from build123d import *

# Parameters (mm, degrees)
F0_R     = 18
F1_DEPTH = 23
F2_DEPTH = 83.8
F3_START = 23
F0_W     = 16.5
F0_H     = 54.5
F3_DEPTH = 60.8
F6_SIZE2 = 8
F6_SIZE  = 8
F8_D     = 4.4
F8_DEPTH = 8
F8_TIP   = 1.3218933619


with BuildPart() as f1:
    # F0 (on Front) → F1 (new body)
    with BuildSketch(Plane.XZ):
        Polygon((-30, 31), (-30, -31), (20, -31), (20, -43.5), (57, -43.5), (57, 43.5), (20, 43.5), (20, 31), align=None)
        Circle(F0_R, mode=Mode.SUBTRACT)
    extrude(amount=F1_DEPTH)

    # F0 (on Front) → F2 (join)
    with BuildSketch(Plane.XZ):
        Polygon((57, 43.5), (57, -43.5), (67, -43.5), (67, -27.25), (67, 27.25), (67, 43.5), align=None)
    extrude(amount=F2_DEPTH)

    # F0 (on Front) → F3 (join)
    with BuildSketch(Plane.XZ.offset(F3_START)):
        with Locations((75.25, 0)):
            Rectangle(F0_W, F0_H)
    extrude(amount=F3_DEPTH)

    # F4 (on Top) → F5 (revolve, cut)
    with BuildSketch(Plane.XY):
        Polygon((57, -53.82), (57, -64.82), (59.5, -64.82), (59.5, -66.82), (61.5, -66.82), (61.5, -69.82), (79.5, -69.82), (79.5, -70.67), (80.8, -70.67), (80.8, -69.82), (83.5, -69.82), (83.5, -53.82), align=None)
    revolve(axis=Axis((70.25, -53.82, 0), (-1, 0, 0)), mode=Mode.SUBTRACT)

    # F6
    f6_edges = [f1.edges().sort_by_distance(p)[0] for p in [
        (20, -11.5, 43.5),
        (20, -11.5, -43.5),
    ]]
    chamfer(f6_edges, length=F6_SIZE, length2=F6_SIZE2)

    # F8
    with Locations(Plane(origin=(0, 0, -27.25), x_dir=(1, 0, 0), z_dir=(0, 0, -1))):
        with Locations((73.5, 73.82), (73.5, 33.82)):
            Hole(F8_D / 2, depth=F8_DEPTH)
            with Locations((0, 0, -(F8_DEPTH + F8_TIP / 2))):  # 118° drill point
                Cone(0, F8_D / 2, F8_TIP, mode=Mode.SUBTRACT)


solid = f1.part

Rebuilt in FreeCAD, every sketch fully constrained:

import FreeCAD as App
import Part
import Sketcher
from FreeCAD import Vector


def edges_at(feature, points):
    """Names of the edges that pass closest to the given points."""
    edges = feature.Shape.Edges
    near = lambda p: min(range(len(edges)), key=lambda i: edges[i].distToShape(Part.Vertex(*p))[0])
    return sorted({f"Edge{near(p) + 1}" for p in points})


def add_polygon(sketch, points):
    """Adds a closed chain of lines whose ends are joined by coincident constraints."""
    first, n = sketch.GeometryCount, len(points)
    for a, b in zip(points, points[1:] + points[:1]):
        sketch.addGeometry(Part.LineSegment(App.Vector(*a, 0), App.Vector(*b, 0)), False)
    for i in range(n):
        sketch.addConstraint(Sketcher.Constraint("Coincident", first + i, 2, first + (i + 1) % n, 1))

doc = App.newDocument("Part")
params = doc.addObject("Spreadsheet::Sheet", "Params")
for row, (alias, value) in enumerate([
    ("sketch1_diameter", "36 mm"),
    ("sketch1_width", "50 mm"),
    ("sketch1_width2", "37 mm"),
    ("sketch1_height", "62 mm"),
    ("sketch1_height2", "87 mm"),
    ("pad1_length", "23 mm"),
    ("sketch2_width", "10 mm"),
    ("sketch2_height", "87 mm"),
    ("pad2_length", "83.8 mm"),
    ("sketch3_width", "16.5 mm"),
    ("sketch3_height", "54.5 mm"),
    ("pad3_length", "60.8 mm"),
    ("sketch4_width", "2 mm"),
    ("sketch4_width2", "18 mm"),
    ("sketch4_height", "11 mm"),
    ("sketch4_height2", "3 mm"),
    ("sketch4_width3", "2.5 mm"),
    ("groove_angle", "360 deg"),
    ("chamfer_size", "8 mm"),
    ("chamfer_size2", "8 mm"),
    ("sketch5_diameter", "4.4 mm"),
    ("hole_diameter", "4.4 mm"),
    ("hole_depth", "8 mm"),
], start=1):
    params.set(f"A{row}", alias)
    params.set(f"B{row}", "=" + value)
    params.setAlias(f"B{row}", alias)

body = doc.addObject("PartDesign::Body", "Body")

# Sketch on XZ plane
sketch1 = doc.addObject("Sketcher::SketchObject", "Sketch")
body.addObject(sketch1)
sketch1.AttachmentSupport = (doc.XZ_Plane, [""])
sketch1.MapMode = "FlatFace"
add_polygon(sketch1, [(-30, 31), (-30, -31), (20, -31), (20, -44), (57, -44), (57, 44), (20, 44), (20, 31)])  # lines 0-7
sketch1.addGeometry(Part.Circle(Vector(0, 0, 0), Vector(0, 0, 1), 18), False)  # 8
sketch1.addConstraint([
    Sketcher.Constraint("Vertical", 0),
    Sketcher.Constraint("Horizontal", 1),
    Sketcher.Constraint("Vertical", 2),
    Sketcher.Constraint("Horizontal", 3),
    Sketcher.Constraint("Vertical", 4),
    Sketcher.Constraint("Horizontal", 5),
    Sketcher.Constraint("Vertical", 6),
    Sketcher.Constraint("Horizontal", 7),
    Sketcher.Constraint("Coincident", 8, 3, -1, 1),
    Sketcher.Constraint("Symmetric", 2, 2, 5, 2, -1),
    Sketcher.Constraint("Equal", 2, 6),
    Sketcher.Constraint("Diameter", 8, 36.0),
    Sketcher.Constraint("DistanceX", 1, 1, 1, 2, 50.0),
    Sketcher.Constraint("DistanceX", 3, 1, 3, 2, 37.0),
    Sketcher.Constraint("DistanceY", 0, 2, 0, 1, 62.0),
    Sketcher.Constraint("DistanceY", 4, 1, 4, 2, 87.0),
    Sketcher.Constraint("DistanceX", 0, 2, -1, 1, 30.0),
])
sketch1.setExpression("Constraints[19]", "Params.sketch1_diameter")
sketch1.setExpression("Constraints[20]", "Params.sketch1_width")
sketch1.setExpression("Constraints[21]", "Params.sketch1_width2")
sketch1.setExpression("Constraints[22]", "Params.sketch1_height")
sketch1.setExpression("Constraints[23]", "Params.sketch1_height2")
pad1 = doc.addObject("PartDesign::Pad", "Pad")
body.addObject(pad1)
pad1.Profile = sketch1
pad1.setExpression("Length", "Params.pad1_length")

# Sketch on XZ plane
sketch2 = doc.addObject("Sketcher::SketchObject", "Sketch001")
body.addObject(sketch2)
sketch2.AttachmentSupport = (doc.XZ_Plane, [""])
sketch2.MapMode = "FlatFace"
add_polygon(sketch2, [(57, 44), (57, -44), (67, -44), (67, 44)])  # lines 0-3
sketch2.addConstraint([
    Sketcher.Constraint("Vertical", 0),
    Sketcher.Constraint("Horizontal", 1),
    Sketcher.Constraint("Vertical", 2),
    Sketcher.Constraint("Horizontal", 3),
    Sketcher.Constraint("DistanceX", 1, 1, 1, 2, 10.0),
    Sketcher.Constraint("DistanceY", 0, 2, 0, 1, 87.0),
    Sketcher.Constraint("DistanceX", -1, 1, 0, 2, 57.0),
    Sketcher.Constraint("DistanceY", 0, 2, -1, 1, 43.5),
])
sketch2.setExpression("Constraints[8]", "Params.sketch2_width")
sketch2.setExpression("Constraints[9]", "Params.sketch2_height")
pad2 = doc.addObject("PartDesign::Pad", "Pad001")
body.addObject(pad2)
pad2.Profile = sketch2
pad2.setExpression("Length", "Params.pad2_length")

# Sketch on XZ plane
sketch3 = doc.addObject("Sketcher::SketchObject", "Sketch002")
body.addObject(sketch3)
sketch3.AttachmentSupport = (doc.XZ_Plane, [""])
sketch3.MapMode = "FlatFace"
sketch3.AttachmentOffset = App.Placement(Vector(0, 0, 23), App.Rotation())
add_polygon(sketch3, [(67, 27), (67, -27), (84, -27), (84, 27)])  # lines 0-3
sketch3.addConstraint([
    Sketcher.Constraint("Vertical", 0),
    Sketcher.Constraint("Horizontal", 1),
    Sketcher.Constraint("Vertical", 2),
    Sketcher.Constraint("Horizontal", 3),
    Sketcher.Constraint("DistanceX", 1, 1, 1, 2, 16.5),
    Sketcher.Constraint("DistanceY", 0, 2, 0, 1, 54.5),
    Sketcher.Constraint("DistanceX", -1, 1, 0, 2, 67.0),
    Sketcher.Constraint("DistanceY", 0, 2, -1, 1, 27.25),
])
sketch3.setExpression("Constraints[8]", "Params.sketch3_width")
sketch3.setExpression("Constraints[9]", "Params.sketch3_height")
pad3 = doc.addObject("PartDesign::Pad", "Pad002")
body.addObject(pad3)
pad3.Profile = sketch3
pad3.setExpression("Length", "Params.pad3_length")

# Sketch on XY plane
sketch4 = doc.addObject("Sketcher::SketchObject", "Sketch003")
body.addObject(sketch4)
sketch4.AttachmentSupport = (doc.XY_Plane, [""])
sketch4.MapMode = "FlatFace"
add_polygon(sketch4, [(57, -53.8), (57, -64.8), (59.5, -64.8), (59.5, -66.8), (61.5, -66.8), (61.5, -69.8), (79.5, -69.8), (79.5, -70.7), (80.8, -70.7), (80.8, -69.8), (83.5, -69.8), (83.5, -53.8)])  # lines 0-11
sketch4.addGeometry(Part.LineSegment(Vector(83.5, -53.8, 0), Vector(57, -53.8, 0)), True)  # axis
sketch4.addConstraint([
    Sketcher.Constraint("Vertical", 0),
    Sketcher.Constraint("Horizontal", 1),
    Sketcher.Constraint("Vertical", 2),
    Sketcher.Constraint("Horizontal", 3),
    Sketcher.Constraint("Vertical", 4),
    Sketcher.Constraint("Horizontal", 5),
    Sketcher.Constraint("Vertical", 6),
    Sketcher.Constraint("Horizontal", 7),
    Sketcher.Constraint("Vertical", 8),
    Sketcher.Constraint("Horizontal", 9),
    Sketcher.Constraint("Vertical", 10),
    Sketcher.Constraint("Horizontal", 11),
    Sketcher.Constraint("Horizontal", 12),
    Sketcher.Constraint("Coincident", 12, 1, 10, 2),
    Sketcher.Constraint("Horizontal", 5, 2, 8, 2),
    Sketcher.Constraint("Vertical", 0, 2, 12, 2),
    Sketcher.Constraint("Equal", 3, 2),
    Sketcher.Constraint("DistanceX", 3, 1, 3, 2, 2.0),
    Sketcher.Constraint("DistanceX", 5, 1, 5, 2, 18.0),
    Sketcher.Constraint("DistanceY", 0, 2, 0, 1, 11.0),
    Sketcher.Constraint("DistanceY", 4, 2, 4, 1, 3.0),
    Sketcher.Constraint("DistanceX", 1, 1, 1, 2, 2.5),
    Sketcher.Constraint("DistanceX", 7, 1, 7, 2, 1.3),
    Sketcher.Constraint("DistanceX", 9, 1, 9, 2, 2.7),
    Sketcher.Constraint("DistanceX", -1, 1, 0, 2, 57.0),
    Sketcher.Constraint("DistanceY", 6, 2, 6, 1, 0.85),
    Sketcher.Constraint("DistanceY", 0, 2, -1, 1, 64.82),
])
sketch4.setExpression("Constraints[29]", "Params.sketch4_width")
sketch4.setExpression("Constraints[30]", "Params.sketch4_width2")
sketch4.setExpression("Constraints[31]", "Params.sketch4_height")
sketch4.setExpression("Constraints[32]", "Params.sketch4_height2")
sketch4.setExpression("Constraints[33]", "Params.sketch4_width3")
groove = doc.addObject("PartDesign::Groove", "Groove")
body.addObject(groove)
groove.Profile = sketch4
groove.ReferenceAxis = (sketch4, ["Axis0"])
groove.setExpression("Angle", "Params.groove_angle")
doc.recompute()

chamfer = doc.addObject("PartDesign::Chamfer", "Chamfer")
body.addObject(chamfer)
chamfer.Base = (groove, edges_at(groove, [(20, -11.5, 43.5), (20, -11.5, -43.5)]))
chamfer.ChamferType = "Two distances"
chamfer.setExpression("Size", "Params.chamfer_size")
chamfer.setExpression("Size2", "Params.chamfer_size2")

# Sketch on XY plane
sketch5 = doc.addObject("Sketcher::SketchObject", "Sketch004")
body.addObject(sketch5)
sketch5.AttachmentSupport = (doc.XY_Plane, [""])
sketch5.MapMode = "FlatFace"
sketch5.AttachmentOffset = App.Placement(Vector(0, 0, -27.25), App.Rotation())
sketch5.addGeometry([
    Part.Circle(Vector(73.5, -73.8, 0), Vector(0, 0, 1), 2.2),
    Part.Circle(Vector(73.5, -33.8, 0), Vector(0, 0, 1), 2.2),
], False)
sketch5.addConstraint([
    Sketcher.Constraint("Equal", 0, 1),
    Sketcher.Constraint("Vertical", 0, 3, 1, 3),
    Sketcher.Constraint("Diameter", 0, 4.4),
    Sketcher.Constraint("DistanceY", 0, 3, 1, 3, 40.0),
    Sketcher.Constraint("DistanceX", -1, 1, 0, 3, 73.5),
    Sketcher.Constraint("DistanceY", 0, 3, -1, 1, 73.82),
])
sketch5.setExpression("Constraints[2]", "Params.sketch5_diameter")
doc.recompute()
hole = doc.addObject("PartDesign::Hole", "Hole")
body.addObject(hole)
hole.Profile = sketch5
hole.ThreadType = "None"
hole.setExpression("Diameter", "Params.hole_diameter")
hole.DepthType = "Dimension"
hole.setExpression("Depth", "Params.hole_depth")
hole.DrillPoint = "Angled"
hole.DrillPointAngle = 118
hole.Reversed = True

doc.recompute()
